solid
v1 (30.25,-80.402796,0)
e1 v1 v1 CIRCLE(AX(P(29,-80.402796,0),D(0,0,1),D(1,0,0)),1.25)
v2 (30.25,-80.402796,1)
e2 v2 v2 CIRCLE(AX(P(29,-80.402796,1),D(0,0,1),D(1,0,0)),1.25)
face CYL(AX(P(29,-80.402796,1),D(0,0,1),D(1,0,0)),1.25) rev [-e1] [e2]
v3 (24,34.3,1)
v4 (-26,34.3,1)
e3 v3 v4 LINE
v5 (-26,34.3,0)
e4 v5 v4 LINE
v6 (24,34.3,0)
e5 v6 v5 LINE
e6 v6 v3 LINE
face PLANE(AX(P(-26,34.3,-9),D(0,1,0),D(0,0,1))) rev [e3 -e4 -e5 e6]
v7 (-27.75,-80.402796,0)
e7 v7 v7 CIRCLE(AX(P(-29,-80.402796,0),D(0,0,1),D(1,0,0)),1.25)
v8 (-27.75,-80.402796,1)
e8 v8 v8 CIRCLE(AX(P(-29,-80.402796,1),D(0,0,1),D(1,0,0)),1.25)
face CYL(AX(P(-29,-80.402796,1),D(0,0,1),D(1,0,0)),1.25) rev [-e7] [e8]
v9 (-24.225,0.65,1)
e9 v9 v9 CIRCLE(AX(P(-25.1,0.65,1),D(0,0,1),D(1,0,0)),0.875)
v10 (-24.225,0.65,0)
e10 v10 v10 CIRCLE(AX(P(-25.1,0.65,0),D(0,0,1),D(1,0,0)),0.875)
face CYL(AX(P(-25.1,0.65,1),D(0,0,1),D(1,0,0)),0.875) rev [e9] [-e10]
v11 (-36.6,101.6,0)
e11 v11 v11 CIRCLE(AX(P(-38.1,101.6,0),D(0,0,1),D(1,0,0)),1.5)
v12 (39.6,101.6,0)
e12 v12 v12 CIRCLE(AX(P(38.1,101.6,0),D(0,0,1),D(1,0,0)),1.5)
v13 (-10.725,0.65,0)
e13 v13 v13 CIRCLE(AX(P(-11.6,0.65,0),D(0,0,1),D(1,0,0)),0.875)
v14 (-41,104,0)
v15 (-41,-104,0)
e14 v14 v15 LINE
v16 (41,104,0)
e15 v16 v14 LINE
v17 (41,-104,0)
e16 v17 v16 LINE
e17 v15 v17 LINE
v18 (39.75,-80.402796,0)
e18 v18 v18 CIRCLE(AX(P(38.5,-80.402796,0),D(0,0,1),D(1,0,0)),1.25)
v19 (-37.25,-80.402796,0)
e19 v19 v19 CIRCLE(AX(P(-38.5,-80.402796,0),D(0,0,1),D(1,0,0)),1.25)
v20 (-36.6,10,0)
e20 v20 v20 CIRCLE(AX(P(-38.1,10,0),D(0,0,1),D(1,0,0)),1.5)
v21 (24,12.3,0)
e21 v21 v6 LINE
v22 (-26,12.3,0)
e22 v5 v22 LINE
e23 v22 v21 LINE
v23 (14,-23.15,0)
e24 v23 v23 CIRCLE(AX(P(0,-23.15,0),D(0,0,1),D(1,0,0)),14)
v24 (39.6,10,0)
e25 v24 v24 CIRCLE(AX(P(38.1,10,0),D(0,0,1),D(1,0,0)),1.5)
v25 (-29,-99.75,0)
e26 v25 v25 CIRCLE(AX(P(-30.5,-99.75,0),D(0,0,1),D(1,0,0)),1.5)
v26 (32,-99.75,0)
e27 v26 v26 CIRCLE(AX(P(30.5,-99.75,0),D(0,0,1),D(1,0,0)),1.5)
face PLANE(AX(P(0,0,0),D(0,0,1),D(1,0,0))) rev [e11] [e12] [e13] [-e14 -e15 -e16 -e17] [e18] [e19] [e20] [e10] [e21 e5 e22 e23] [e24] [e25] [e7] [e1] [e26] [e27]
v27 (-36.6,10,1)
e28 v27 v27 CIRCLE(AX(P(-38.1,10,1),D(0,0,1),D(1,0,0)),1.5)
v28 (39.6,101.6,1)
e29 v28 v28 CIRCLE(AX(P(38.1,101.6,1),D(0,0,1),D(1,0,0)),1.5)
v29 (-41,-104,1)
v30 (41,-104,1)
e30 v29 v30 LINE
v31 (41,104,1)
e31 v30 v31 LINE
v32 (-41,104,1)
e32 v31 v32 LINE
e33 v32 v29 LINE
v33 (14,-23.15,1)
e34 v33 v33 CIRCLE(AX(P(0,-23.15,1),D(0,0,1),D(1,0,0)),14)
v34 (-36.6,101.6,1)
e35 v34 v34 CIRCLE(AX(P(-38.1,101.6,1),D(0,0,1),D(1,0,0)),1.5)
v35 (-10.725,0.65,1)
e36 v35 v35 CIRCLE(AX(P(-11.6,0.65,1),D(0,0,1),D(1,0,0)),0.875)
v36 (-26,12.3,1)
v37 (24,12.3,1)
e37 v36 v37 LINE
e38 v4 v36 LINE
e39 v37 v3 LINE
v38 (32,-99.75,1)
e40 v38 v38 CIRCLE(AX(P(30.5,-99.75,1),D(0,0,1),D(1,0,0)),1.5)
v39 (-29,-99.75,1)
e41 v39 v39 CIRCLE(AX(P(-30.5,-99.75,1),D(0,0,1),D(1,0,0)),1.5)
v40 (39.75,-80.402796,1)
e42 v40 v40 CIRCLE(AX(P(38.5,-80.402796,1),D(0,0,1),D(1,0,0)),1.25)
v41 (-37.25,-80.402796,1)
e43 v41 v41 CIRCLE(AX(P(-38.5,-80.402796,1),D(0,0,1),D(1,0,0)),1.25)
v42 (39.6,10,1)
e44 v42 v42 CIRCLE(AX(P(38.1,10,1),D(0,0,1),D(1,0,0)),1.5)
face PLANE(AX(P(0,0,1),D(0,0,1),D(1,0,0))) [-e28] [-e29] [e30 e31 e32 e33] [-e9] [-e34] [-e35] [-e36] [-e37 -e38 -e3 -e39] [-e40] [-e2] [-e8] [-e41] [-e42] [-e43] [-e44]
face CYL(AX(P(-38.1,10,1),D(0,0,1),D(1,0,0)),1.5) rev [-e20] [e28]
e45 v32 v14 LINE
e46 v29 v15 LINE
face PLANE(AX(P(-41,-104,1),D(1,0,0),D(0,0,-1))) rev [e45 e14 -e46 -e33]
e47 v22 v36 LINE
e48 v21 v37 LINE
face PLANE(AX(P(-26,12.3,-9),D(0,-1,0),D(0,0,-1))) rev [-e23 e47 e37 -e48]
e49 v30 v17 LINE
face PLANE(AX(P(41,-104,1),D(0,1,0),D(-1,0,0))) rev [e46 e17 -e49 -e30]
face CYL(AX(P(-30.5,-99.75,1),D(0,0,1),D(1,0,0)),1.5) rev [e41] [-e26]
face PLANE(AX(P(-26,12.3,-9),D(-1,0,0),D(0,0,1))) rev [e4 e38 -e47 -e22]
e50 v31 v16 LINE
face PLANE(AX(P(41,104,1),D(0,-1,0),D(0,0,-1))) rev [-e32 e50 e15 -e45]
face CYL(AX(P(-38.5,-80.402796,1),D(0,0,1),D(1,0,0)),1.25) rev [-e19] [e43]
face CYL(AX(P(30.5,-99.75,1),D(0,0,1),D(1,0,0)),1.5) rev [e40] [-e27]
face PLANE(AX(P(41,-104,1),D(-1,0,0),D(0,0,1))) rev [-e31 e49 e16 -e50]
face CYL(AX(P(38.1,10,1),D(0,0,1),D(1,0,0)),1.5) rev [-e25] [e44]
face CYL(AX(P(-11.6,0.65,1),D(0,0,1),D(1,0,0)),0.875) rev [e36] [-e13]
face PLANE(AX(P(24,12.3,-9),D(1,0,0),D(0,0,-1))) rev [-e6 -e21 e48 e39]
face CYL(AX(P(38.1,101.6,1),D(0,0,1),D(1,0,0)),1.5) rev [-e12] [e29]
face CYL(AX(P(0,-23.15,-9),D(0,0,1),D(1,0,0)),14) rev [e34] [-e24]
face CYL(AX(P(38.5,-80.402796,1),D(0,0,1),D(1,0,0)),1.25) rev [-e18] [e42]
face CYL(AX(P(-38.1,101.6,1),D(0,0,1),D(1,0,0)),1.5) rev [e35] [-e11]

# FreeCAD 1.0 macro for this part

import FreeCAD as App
import Part
import Sketcher

V = App.Vector


def add_polygon(sketch, points):
    """Adds a closed chain of lines whose ends are joined by coincident constraints."""
    first, n = sketch.GeometryCount, len(points)
    for a, b in zip(points, points[1:] + points[:1]):
        sketch.addGeometry(Part.LineSegment(App.Vector(*a, 0), App.Vector(*b, 0)), False)
    for i in range(n):
        sketch.addConstraint(Sketcher.Constraint("Coincident", first + i, 2, first + (i + 1) % n, 1))

doc = App.newDocument("Part")
body = doc.addObject("PartDesign::Body", "Body")

# Sketch on XY plane
sketch1 = body.newObject("Sketcher::SketchObject", "Sketch")
sketch1.AttachmentSupport = (doc.getObject("XY_Plane"), [""])
sketch1.MapMode = "FlatFace"
add_polygon(sketch1, [(-41, 104), (-41, -104), (41, -104), (41, 104)])  # lines 0-3
sketch1.addConstraint([
    Sketcher.Constraint("Vertical", 0),
    Sketcher.Constraint("Horizontal", 1),
    Sketcher.Constraint("Vertical", 2),
    Sketcher.Constraint("Horizontal", 3),
    Sketcher.Constraint("Symmetric", 0, 2, 2, 2, -1, 1),
    Sketcher.Constraint("DistanceX", 1, 1, 1, 2, 82.0),
    Sketcher.Constraint("DistanceY", 0, 2, 0, 1, 208.0),
])
pad1 = body.newObject("PartDesign::Pad", "Pad")
pad1.Profile = sketch1
pad1.Length = 1

# Sketch on XY plane
sketch2 = body.newObject("Sketcher::SketchObject", "Sketch001")
sketch2.AttachmentSupport = (doc.getObject("XY_Plane"), [""])
sketch2.MapMode = "FlatFace"
sketch2.AttachmentOffset = App.Placement(V(0, 0, 1), App.Rotation())
sketch2.addGeometry([
    Part.Circle(V(-38.1, 10, 0), V(0, 0, 1), 1.5),  # 0
    Part.Circle(V(38.1, 10, 0), V(0, 0, 1), 1.5),  # 1
    Part.Circle(V(30.5, -99.8, 0), V(0, 0, 1), 1.5),  # 2
    Part.Circle(V(-30.5, -99.8, 0), V(0, 0, 1), 1.5),  # 3
    Part.Circle(V(-38.1, 101.6, 0), V(0, 0, 1), 1.5),  # 4
    Part.Circle(V(38.1, 101.6, 0), V(0, 0, 1), 1.5),  # 5
], False)
sketch2.addConstraint([
    Sketcher.Constraint("Equal", 0, 1),
    Sketcher.Constraint("Equal", 1, 2),
    Sketcher.Constraint("Equal", 2, 3),
    Sketcher.Constraint("Equal", 3, 4),
    Sketcher.Constraint("Equal", 4, 5),
    Sketcher.Constraint("Symmetric", 0, 3, 1, 3, -2),
    Sketcher.Constraint("Symmetric", 2, 3, 3, 3, -2),
    Sketcher.Constraint("Symmetric", 4, 3, 5, 3, -2),
    Sketcher.Constraint("Vertical", 0, 3, 4, 3),
    Sketcher.Constraint("Diameter", 0, 3.0),
    Sketcher.Constraint("DistanceY", -1, 1, 0, 3, 10.0),
    Sketcher.Constraint("DistanceX", 3, 3, 2, 3, 61.0),
    Sketcher.Constraint("DistanceX", 0, 3, -1, 1, 38.1),
    Sketcher.Constraint("DistanceY", -1, 1, 4, 3, 101.6),
    Sketcher.Constraint("DistanceY", 2, 3, -1, 1, 99.75),
])
doc.recompute()
hole = body.newObject("PartDesign::Hole", "Hole")
hole.Profile = sketch2
hole.ThreadType = "None"
hole.Diameter = 3
hole.DepthType = "ThroughAll"

# Sketch on XY plane
sketch3 = body.newObject("Sketcher::SketchObject", "Sketch002")
sketch3.AttachmentSupport = (doc.getObject("XY_Plane"), [""])
sketch3.MapMode = "FlatFace"
sketch3.AttachmentOffset = App.Placement(V(0, 0, 1), App.Rotation())
sketch3.addGeometry(Part.Circle(V(0, -23, 0), V(0, 0, 1), 14), False)
sketch3.addConstraint([
    Sketcher.Constraint("PointOnObject", 0, 3, -2),
    Sketcher.Constraint("Diameter", 0, 28.0),
    Sketcher.Constraint("DistanceY", 0, 3, -1, 1, 23.15),
])
pocket1 = body.newObject("PartDesign::Pocket", "Pocket")
pocket1.Profile = sketch3
pocket1.Length = 10

# Sketch on XY plane
sketch4 = body.newObject("Sketcher::SketchObject", "Sketch003")
sketch4.AttachmentSupport = (doc.getObject("XY_Plane"), [""])
sketch4.MapMode = "FlatFace"
sketch4.AttachmentOffset = App.Placement(V(0, 0, 1), App.Rotation())
add_polygon(sketch4, [(-26, 34), (-26, 12), (24, 12), (24, 34)])  # lines 0-3
sketch4.addConstraint([
    Sketcher.Constraint("Vertical", 0),
    Sketcher.Constraint("Horizontal", 1),
    Sketcher.Constraint("Vertical", 2),
    Sketcher.Constraint("Horizontal", 3),
    Sketcher.Constraint("DistanceX", 1, 1, 1, 2, 50.0),
    Sketcher.Constraint("DistanceY", 0, 2, 0, 1, 22.0),
    Sketcher.Constraint("DistanceX", 0, 2, -1, 1, 26.0),
    Sketcher.Constraint("DistanceY", -1, 1, 0, 2, 12.3),
])
pocket2 = body.newObject("PartDesign::Pocket", "Pocket001")
pocket2.Profile = sketch4
pocket2.Length = 10

# Sketch on XY plane
sketch5 = body.newObject("Sketcher::SketchObject", "Sketch004")
sketch5.AttachmentSupport = (doc.getObject("XY_Plane"), [""])
sketch5.MapMode = "FlatFace"
sketch5.AttachmentOffset = App.Placement(V(0, 0, 1), App.Rotation())
sketch5.addGeometry([
    Part.Circle(V(-38.5, -80.4, 0), V(0, 0, 1), 1.2),
    Part.Circle(V(-29, -80.4, 0), V(0, 0, 1), 1.2),
    Part.Circle(V(29, -80.4, 0), V(0, 0, 1), 1.2),
    Part.Circle(V(38.5, -80.4, 0), V(0, 0, 1), 1.2),
], False)
sketch5.addConstraint([
    Sketcher.Constraint("Equal", 0, 1),
    Sketcher.Constraint("Equal", 1, 2),
    Sketcher.Constraint("Equal", 2, 3),
    Sketcher.Constraint("Symmetric", 1, 3, 2, 3, -2),
    Sketcher.Constraint("Symmetric", 0, 3, 3, 3, -2),
    Sketcher.Constraint("Horizontal", 0, 3, 1, 3),
    Sketcher.Constraint("Diameter", 0, 2.5),
    Sketcher.Constraint("DistanceX", 1, 3, -1, 1, 29.0),
    Sketcher.Constraint("DistanceX", 0, 3, 3, 3, 77.0),
    Sketcher.Constraint("DistanceY", 0, 3, -1, 1, 80.402796),
])
doc.recompute()
hole2 = body.newObject("PartDesign::Hole", "Hole001")
hole2.Profile = sketch5
hole2.ThreadType = "None"
hole2.Diameter = 2.5
hole2.DepthType = "ThroughAll"

# Sketch on XY plane
sketch6 = body.newObject("Sketcher::SketchObject", "Sketch005")
sketch6.AttachmentSupport = (doc.getObject("XY_Plane"), [""])
sketch6.MapMode = "FlatFace"
sketch6.AttachmentOffset = App.Placement(V(0, 0, 1), App.Rotation())
sketch6.addGeometry([
    Part.Circle(V(-25.1, 0.7, 0), V(0, 0, 1), 0.9),
    Part.Circle(V(-11.6, 0.7, 0), V(0, 0, 1), 0.9),
], False)
sketch6.addConstraint([
    Sketcher.Constraint("Equal", 0, 1),
    Sketcher.Constraint("Horizontal", 0, 3, 1, 3),
    Sketcher.Constraint("Diameter", 0, 1.75),
    Sketcher.Constraint("DistanceX", 0, 3, -1, 1, 25.1),
    Sketcher.Constraint("DistanceX", 1, 3, -1, 1, 11.6),
    Sketcher.Constraint("DistanceY", -1, 1, 0, 3, 0.65),
])
doc.recompute()
hole3 = body.newObject("PartDesign::Hole", "Hole002")
hole3.Profile = sketch6
hole3.ThreadType = "None"
hole3.Diameter = 1.75
hole3.DepthType = "ThroughAll"

doc.recompute()
